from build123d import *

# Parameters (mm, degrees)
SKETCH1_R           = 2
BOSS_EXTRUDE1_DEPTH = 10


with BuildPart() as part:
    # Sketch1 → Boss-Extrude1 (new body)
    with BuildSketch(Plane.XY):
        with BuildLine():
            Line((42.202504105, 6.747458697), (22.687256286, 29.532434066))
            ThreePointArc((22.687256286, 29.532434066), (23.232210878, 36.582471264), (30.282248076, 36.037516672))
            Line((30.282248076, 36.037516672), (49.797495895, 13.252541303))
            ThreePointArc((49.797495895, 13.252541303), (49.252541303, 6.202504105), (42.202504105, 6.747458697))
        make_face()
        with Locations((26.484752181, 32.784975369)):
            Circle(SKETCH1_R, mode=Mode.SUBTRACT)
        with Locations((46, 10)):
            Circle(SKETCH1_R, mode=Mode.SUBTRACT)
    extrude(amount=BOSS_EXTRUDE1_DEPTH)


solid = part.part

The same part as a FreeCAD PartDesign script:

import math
import FreeCAD as App
import Part
import Sketcher
from FreeCAD import Vector
Q = App.Units.Quantity

doc = App.newDocument("Part")
body = doc.addObject("PartDesign::Body", "Body")

sketch1 = body.newObject("Sketcher::SketchObject", "Sketch")
sketch1.AttachmentSupport = (doc.getObject("XY_Plane"), [""])
sketch1.MapMode = "FlatFace"
sketch1.addGeometry([
    Part.LineSegment(Vector(22.7, 29.5, 0), Vector(42.2, 6.7, 0)),
    Part.ArcOfCircle(Part.Circle(Vector(46, 10, 0), Vector(0, 0, 1), 5), math.radians(-139), math.radians(41)),
    Part.LineSegment(Vector(49.8, 13.3, 0), Vector(30.3, 36, 0)),
    Part.ArcOfCircle(Part.Circle(Vector(26.5, 32.8, 0), Vector(0, 0, 1), 5), math.radians(41), math.radians(221)),
    Part.Circle(Vector(46, 10, 0), Vector(0, 0, 1), 2),
    Part.Circle(Vector(26.5, 32.8, 0), Vector(0, 0, 1), 2),
], False)
sketch1.addConstraint([
    Sketcher.Constraint("Tangent", 0, 2, 1, 1),
    Sketcher.Constraint("Tangent", 1, 2, 2, 1),
    Sketcher.Constraint("Tangent", 2, 2, 3, 1),
    Sketcher.Constraint("Tangent", 3, 2, 0, 1),
    Sketcher.Constraint("Coincident", 4, 3, 1, 3),
    Sketcher.Constraint("Coincident", 5, 3, 3, 3),
    Sketcher.Constraint("Equal", 1, 3),
    Sketcher.Constraint("Equal", 4, 5),
    Sketcher.Constraint("Diameter", 4, Q("4 mm")),
    Sketcher.Constraint("Radius", 1, Q("5 mm")),
    Sketcher.Constraint("Distance", 0, Q("30 mm")),
    Sketcher.Constraint("DistanceX", -1, 1, 1, 3, Q("46 mm")),
    Sketcher.Constraint("DistanceY", -1, 1, 1, 3, Q("10 mm")),
    Sketcher.Constraint("DistanceY", -1, 1, 0, 2, Q("6.747459 mm")),
])
pad1 = body.newObject("PartDesign::Pad", "Pad")
pad1.Profile = sketch1
pad1.Length = 10

doc.recompute()
